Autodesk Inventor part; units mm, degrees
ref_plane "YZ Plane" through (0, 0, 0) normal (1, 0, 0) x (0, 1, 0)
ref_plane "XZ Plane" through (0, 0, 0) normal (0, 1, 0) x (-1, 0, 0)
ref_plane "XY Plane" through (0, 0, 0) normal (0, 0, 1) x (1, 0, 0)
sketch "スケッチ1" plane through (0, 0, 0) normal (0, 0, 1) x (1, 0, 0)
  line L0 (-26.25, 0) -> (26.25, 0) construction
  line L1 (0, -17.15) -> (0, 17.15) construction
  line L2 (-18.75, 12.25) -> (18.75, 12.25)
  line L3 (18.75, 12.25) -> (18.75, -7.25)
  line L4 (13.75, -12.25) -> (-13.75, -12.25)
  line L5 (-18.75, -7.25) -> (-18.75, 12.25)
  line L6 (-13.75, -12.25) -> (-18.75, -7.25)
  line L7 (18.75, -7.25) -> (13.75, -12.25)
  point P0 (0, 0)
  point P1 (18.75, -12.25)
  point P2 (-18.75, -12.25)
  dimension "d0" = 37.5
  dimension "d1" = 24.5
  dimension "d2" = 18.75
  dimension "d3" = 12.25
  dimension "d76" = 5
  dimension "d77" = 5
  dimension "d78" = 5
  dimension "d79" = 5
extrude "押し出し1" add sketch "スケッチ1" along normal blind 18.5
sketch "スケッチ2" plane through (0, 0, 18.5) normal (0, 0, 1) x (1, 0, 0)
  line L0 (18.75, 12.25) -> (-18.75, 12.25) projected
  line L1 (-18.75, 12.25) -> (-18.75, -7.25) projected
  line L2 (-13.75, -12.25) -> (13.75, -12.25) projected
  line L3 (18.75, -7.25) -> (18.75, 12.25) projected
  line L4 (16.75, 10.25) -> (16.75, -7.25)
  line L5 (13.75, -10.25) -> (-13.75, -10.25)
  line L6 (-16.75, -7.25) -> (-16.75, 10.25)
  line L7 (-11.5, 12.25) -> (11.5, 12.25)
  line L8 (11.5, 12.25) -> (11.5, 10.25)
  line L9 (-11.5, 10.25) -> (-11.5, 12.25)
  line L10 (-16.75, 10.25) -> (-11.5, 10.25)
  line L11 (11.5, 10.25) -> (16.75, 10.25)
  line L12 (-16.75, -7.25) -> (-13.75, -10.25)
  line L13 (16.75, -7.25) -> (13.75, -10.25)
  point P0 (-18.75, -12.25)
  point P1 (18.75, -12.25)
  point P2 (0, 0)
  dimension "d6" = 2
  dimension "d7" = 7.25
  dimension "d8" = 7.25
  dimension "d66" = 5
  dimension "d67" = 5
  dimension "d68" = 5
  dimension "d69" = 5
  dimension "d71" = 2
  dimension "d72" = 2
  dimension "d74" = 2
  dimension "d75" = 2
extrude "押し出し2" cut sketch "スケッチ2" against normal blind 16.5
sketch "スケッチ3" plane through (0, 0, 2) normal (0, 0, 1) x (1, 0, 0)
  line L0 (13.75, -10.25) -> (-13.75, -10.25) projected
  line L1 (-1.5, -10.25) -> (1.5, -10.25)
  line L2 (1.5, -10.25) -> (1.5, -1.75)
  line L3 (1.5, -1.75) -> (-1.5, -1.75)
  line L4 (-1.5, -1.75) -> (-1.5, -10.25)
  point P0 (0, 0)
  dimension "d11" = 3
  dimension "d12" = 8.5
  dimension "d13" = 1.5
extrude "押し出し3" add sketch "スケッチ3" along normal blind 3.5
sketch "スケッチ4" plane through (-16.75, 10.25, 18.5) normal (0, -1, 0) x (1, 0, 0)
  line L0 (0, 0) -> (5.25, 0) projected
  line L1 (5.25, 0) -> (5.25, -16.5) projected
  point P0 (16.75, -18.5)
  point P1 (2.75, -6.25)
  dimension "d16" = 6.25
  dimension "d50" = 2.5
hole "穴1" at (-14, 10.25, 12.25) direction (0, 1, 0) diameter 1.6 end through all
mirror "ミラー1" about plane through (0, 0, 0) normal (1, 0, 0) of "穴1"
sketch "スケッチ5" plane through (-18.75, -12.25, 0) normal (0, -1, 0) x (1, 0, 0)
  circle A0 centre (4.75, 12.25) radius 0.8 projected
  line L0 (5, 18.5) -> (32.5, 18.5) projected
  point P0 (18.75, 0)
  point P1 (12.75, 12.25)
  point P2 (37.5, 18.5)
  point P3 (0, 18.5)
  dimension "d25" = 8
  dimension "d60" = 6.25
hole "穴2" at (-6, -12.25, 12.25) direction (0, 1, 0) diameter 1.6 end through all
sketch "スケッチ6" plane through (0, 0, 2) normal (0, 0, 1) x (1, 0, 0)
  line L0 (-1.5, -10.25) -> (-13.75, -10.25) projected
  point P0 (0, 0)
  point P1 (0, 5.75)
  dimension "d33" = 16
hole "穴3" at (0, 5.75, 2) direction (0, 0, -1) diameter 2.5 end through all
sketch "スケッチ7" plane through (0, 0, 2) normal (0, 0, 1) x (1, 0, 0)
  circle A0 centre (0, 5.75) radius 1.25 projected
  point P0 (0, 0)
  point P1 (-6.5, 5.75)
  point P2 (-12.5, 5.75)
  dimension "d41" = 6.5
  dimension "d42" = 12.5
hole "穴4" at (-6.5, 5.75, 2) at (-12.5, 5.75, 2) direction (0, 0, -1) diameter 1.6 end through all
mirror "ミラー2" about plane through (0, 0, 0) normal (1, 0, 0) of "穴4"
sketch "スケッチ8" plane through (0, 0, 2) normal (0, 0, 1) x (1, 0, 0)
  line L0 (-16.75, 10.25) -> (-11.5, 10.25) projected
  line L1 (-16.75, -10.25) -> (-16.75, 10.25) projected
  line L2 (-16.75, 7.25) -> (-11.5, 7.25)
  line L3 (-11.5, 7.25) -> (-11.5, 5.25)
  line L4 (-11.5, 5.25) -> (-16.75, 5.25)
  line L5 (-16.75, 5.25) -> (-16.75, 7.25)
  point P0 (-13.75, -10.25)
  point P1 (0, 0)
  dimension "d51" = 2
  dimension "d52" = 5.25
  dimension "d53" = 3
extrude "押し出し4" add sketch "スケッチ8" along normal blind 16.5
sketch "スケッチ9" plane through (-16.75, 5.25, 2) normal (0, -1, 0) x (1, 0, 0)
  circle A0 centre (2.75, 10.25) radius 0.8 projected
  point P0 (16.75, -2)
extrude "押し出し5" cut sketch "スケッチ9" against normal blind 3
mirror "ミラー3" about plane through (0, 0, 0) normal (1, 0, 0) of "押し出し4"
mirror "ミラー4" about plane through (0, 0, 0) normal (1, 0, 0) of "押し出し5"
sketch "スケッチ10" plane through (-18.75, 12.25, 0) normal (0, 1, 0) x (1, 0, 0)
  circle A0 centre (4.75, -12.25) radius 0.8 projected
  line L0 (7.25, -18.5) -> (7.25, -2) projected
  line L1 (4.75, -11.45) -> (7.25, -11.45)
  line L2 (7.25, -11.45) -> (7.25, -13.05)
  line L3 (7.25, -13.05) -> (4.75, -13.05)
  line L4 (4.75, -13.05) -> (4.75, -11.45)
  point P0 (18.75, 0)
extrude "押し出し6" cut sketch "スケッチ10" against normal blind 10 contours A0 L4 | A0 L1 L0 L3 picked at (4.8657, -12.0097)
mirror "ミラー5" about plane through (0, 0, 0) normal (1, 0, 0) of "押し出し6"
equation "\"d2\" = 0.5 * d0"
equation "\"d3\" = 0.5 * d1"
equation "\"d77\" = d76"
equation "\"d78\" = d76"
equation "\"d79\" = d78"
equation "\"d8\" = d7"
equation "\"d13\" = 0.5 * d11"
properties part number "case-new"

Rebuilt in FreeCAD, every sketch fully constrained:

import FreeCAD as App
import Part
import Sketcher

V = App.Vector

doc = App.newDocument("Part")
body = doc.addObject("PartDesign::Body", "Body")

sketch1 = doc.addObject("Sketcher::SketchObject", "Sketch")
body.addObject(sketch1)
sketch1.AttachmentSupport = (doc.XY_Plane, [""])
sketch1.MapMode = "FlatFace"
sketch1.addGeometry(Part.LineSegment(V(18.75, 12.25, 0), V(-18.75, 12.25, 0)), False)
sketch1.addGeometry(Part.LineSegment(V(-18.75, 12.25, 0), V(-18.75, -7.25, 0)), False)
sketch1.addGeometry(Part.LineSegment(V(-18.75, -7.25, 0), V(-13.75, -12.25, 0)), False)
sketch1.addGeometry(Part.LineSegment(V(-13.75, -12.25, 0), V(13.75, -12.25, 0)), False)
sketch1.addGeometry(Part.LineSegment(V(13.75, -12.25, 0), V(18.75, -7.25, 0)), False)
sketch1.addGeometry(Part.LineSegment(V(18.75, -7.25, 0), V(18.75, 12.25, 0)), False)
sketch1.addConstraint(Sketcher.Constraint("Coincident", 0, 2, 1, 1))
sketch1.addConstraint(Sketcher.Constraint("Coincident", 1, 2, 2, 1))
sketch1.addConstraint(Sketcher.Constraint("Coincident", 2, 2, 3, 1))
sketch1.addConstraint(Sketcher.Constraint("Coincident", 3, 2, 4, 1))
sketch1.addConstraint(Sketcher.Constraint("Coincident", 4, 2, 5, 1))
sketch1.addConstraint(Sketcher.Constraint("Coincident", 5, 2, 0, 1))
sketch1.addConstraint(Sketcher.Constraint("Horizontal", 0))
sketch1.addConstraint(Sketcher.Constraint("Vertical", 1))
sketch1.addConstraint(Sketcher.Constraint("Horizontal", 3))
sketch1.addConstraint(Sketcher.Constraint("Vertical", 5))
sketch1.addConstraint(Sketcher.Constraint("Symmetric", 1, 2, 4, 2, -2))
sketch1.addConstraint(Sketcher.Constraint("Perpendicular", 2, 4))
sketch1.addConstraint(Sketcher.Constraint("Equal", 2, 4))
sketch1.addConstraint(Sketcher.Constraint("DistanceX", 0, 2, 0, 1, 37.5))
sketch1.addConstraint(Sketcher.Constraint("DistanceX", 1, 2, 2, 2, 5.0))
sketch1.addConstraint(Sketcher.Constraint("DistanceY", 2, 2, 0, 2, 24.5))
sketch1.addConstraint(Sketcher.Constraint("DistanceY", -1, 1, 0, 2, 12.25))
pad1 = doc.addObject("PartDesign::Pad", "Pad")
body.addObject(pad1)
pad1.Profile = sketch1
pad1.Length = 18.5

sketch2 = doc.addObject("Sketcher::SketchObject", "Sketch001")
body.addObject(sketch2)
sketch2.AttachmentSupport = (doc.XY_Plane, [""])
sketch2.MapMode = "FlatFace"
sketch2.AttachmentOffset = App.Placement(V(0, 0, 18.5), App.Rotation())
sketch2.addGeometry(Part.LineSegment(V(11.5, 10.25, 0), V(11.5, 12.25, 0)), False)
sketch2.addGeometry(Part.LineSegment(V(11.5, 12.25, 0), V(-11.5, 12.25, 0)), False)
sketch2.addGeometry(Part.LineSegment(V(-11.5, 12.25, 0), V(-11.5, 10.25, 0)), False)
sketch2.addGeometry(Part.LineSegment(V(-11.5, 10.25, 0), V(-16.75, 10.25, 0)), False)
sketch2.addGeometry(Part.LineSegment(V(-16.75, 10.25, 0), V(-16.75, -7.25, 0)), False)
sketch2.addGeometry(Part.LineSegment(V(-16.75, -7.25, 0), V(-13.75, -10.25, 0)), False)
sketch2.addGeometry(Part.LineSegment(V(-13.75, -10.25, 0), V(13.75, -10.25, 0)), False)
sketch2.addGeometry(Part.LineSegment(V(13.75, -10.25, 0), V(16.75, -7.25, 0)), False)
sketch2.addGeometry(Part.LineSegment(V(16.75, -7.25, 0), V(16.75, 10.25, 0)), False)
sketch2.addGeometry(Part.LineSegment(V(16.75, 10.25, 0), V(11.5, 10.25, 0)), False)
sketch2.addConstraint(Sketcher.Constraint("Coincident", 0, 2, 1, 1))
sketch2.addConstraint(Sketcher.Constraint("Coincident", 1, 2, 2, 1))
sketch2.addConstraint(Sketcher.Constraint("Coincident", 2, 2, 3, 1))
sketch2.addConstraint(Sketcher.Constraint("Coincident", 3, 2, 4, 1))
sketch2.addConstraint(Sketcher.Constraint("Coincident", 4, 2, 5, 1))
sketch2.addConstraint(Sketcher.Constraint("Coincident", 5, 2, 6, 1))
sketch2.addConstraint(Sketcher.Constraint("Coincident", 6, 2, 7, 1))
sketch2.addConstraint(Sketcher.Constraint("Coincident", 7, 2, 8, 1))
sketch2.addConstraint(Sketcher.Constraint("Coincident", 8, 2, 9, 1))
sketch2.addConstraint(Sketcher.Constraint("Coincident", 9, 2, 0, 1))
sketch2.addConstraint(Sketcher.Constraint("Vertical", 0))
sketch2.addConstraint(Sketcher.Constraint("Horizontal", 1))
sketch2.addConstraint(Sketcher.Constraint("Vertical", 2))
sketch2.addConstraint(Sketcher.Constraint("Horizontal", 3))
sketch2.addConstraint(Sketcher.Constraint("Vertical", 4))
sketch2.addConstraint(Sketcher.Constraint("Horizontal", 6))
sketch2.addConstraint(Sketcher.Constraint("Vertical", 8))
sketch2.addConstraint(Sketcher.Constraint("Horizontal", 9))
sketch2.addConstraint(Sketcher.Constraint("Symmetric", 4, 2, 7, 2, -2))
sketch2.addConstraint(Sketcher.Constraint("Symmetric", 2, 2, 9, 2, -2))
sketch2.addConstraint(Sketcher.Constraint("Perpendicular", 5, 7))
sketch2.addConstraint(Sketcher.Constraint("Equal", 5, 7))
sketch2.addConstraint(Sketcher.Constraint("DistanceY", 0, 1, 0, 2, 2.0))
sketch2.addConstraint(Sketcher.Constraint("DistanceX", 1, 2, 1, 1, 23.0))
sketch2.addConstraint(Sketcher.Constraint("DistanceY", 4, 2, -1, 1, 7.25))
sketch2.addConstraint(Sketcher.Constraint("DistanceX", 6, 1, 6, 2, 27.5))
sketch2.addConstraint(Sketcher.Constraint("DistanceY", 4, 2, 4, 1, 17.5))
sketch2.addConstraint(Sketcher.Constraint("DistanceX", 4, 2, 5, 2, 3.0))
pocket1 = doc.addObject("PartDesign::Pocket", "Pocket")
body.addObject(pocket1)
pocket1.Profile = sketch2
pocket1.Length = 16.5

sketch3 = doc.addObject("Sketcher::SketchObject", "Sketch002")
body.addObject(sketch3)
sketch3.AttachmentSupport = (doc.XY_Plane, [""])
sketch3.MapMode = "FlatFace"
sketch3.AttachmentOffset = App.Placement(V(0, 0, 2), App.Rotation())
sketch3.addGeometry(Part.LineSegment(V(-1.5, -10.25, 0), V(1.5, -10.25, 0)), False)
sketch3.addGeometry(Part.LineSegment(V(1.5, -10.25, 0), V(1.5, -1.75, 0)), False)
sketch3.addGeometry(Part.LineSegment(V(1.5, -1.75, 0), V(-1.5, -1.75, 0)), False)
sketch3.addGeometry(Part.LineSegment(V(-1.5, -1.75, 0), V(-1.5, -10.25, 0)), False)
sketch3.addConstraint(Sketcher.Constraint("Coincident", 0, 2, 1, 1))
sketch3.addConstraint(Sketcher.Constraint("Coincident", 1, 2, 2, 1))
sketch3.addConstraint(Sketcher.Constraint("Coincident", 2, 2, 3, 1))
sketch3.addConstraint(Sketcher.Constraint("Coincident", 3, 2, 0, 1))
sketch3.addConstraint(Sketcher.Constraint("Horizontal", 0))
sketch3.addConstraint(Sketcher.Constraint("Vertical", 1))
sketch3.addConstraint(Sketcher.Constraint("Horizontal", 2))
sketch3.addConstraint(Sketcher.Constraint("Vertical", 3))
sketch3.addConstraint(Sketcher.Constraint("DistanceX", 0, 1, 0, 2, 3.0))
sketch3.addConstraint(Sketcher.Constraint("DistanceY", 1, 1, 1, 2, 8.5))
sketch3.addConstraint(Sketcher.Constraint("DistanceX", -1, 1, 0, 2, 1.5))
sketch3.addConstraint(Sketcher.Constraint("DistanceY", 0, 2, -1, 1, 10.25))
pad2 = doc.addObject("PartDesign::Pad", "Pad001")
body.addObject(pad2)
pad2.Profile = sketch3
pad2.Length = 3.5

sketch4 = doc.addObject("Sketcher::SketchObject", "Sketch003")
body.addObject(sketch4)
sketch4.AttachmentSupport = (doc.XZ_Plane, [""])
sketch4.MapMode = "FlatFace"
sketch4.AttachmentOffset = App.Placement(V(0, 0, -10.25), App.Rotation())
sketch4.addGeometry(Part.Circle(V(-14, 12.25, 0), V(0, 0, 1), 0.8), False)
sketch4.addConstraint(Sketcher.Constraint("Diameter", 0, 1.6))
sketch4.addConstraint(Sketcher.Constraint("DistanceX", 0, 3, -1, 1, 14.0))
sketch4.addConstraint(Sketcher.Constraint("DistanceY", -1, 1, 0, 3, 12.25))
doc.recompute()
hole = doc.addObject("PartDesign::Hole", "Hole")
body.addObject(hole)
hole.Profile = sketch4
hole.ThreadType = "None"
hole.Diameter = 1.6
hole.DepthType = "ThroughAll"
doc.recompute()

mirrored = doc.addObject("PartDesign::Mirrored", "Mirrored")
body.addObject(mirrored)
mirrored.Originals = [hole]
mirrored.MirrorPlane = (doc.YZ_Plane, [""])
body.Tip = mirrored

sketch5 = doc.addObject("Sketcher::SketchObject", "Sketch004")
body.addObject(sketch5)
sketch5.AttachmentSupport = (doc.XZ_Plane, [""])
sketch5.MapMode = "FlatFace"
sketch5.AttachmentOffset = App.Placement(V(0, 0, 12.25), App.Rotation())
sketch5.addGeometry(Part.Circle(V(-6, 12.25, 0), V(0, 0, 1), 0.8), False)
sketch5.addConstraint(Sketcher.Constraint("Diameter", 0, 1.6))
sketch5.addConstraint(Sketcher.Constraint("DistanceX", 0, 3, -1, 1, 6.0))
sketch5.addConstraint(Sketcher.Constraint("DistanceY", -1, 1, 0, 3, 12.25))
doc.recompute()
hole2 = doc.addObject("PartDesign::Hole", "Hole001")
body.addObject(hole2)
hole2.Profile = sketch5
hole2.ThreadType = "None"
hole2.Diameter = 1.6
hole2.DepthType = "ThroughAll"

sketch6 = doc.addObject("Sketcher::SketchObject", "Sketch005")
body.addObject(sketch6)
sketch6.AttachmentSupport = (doc.XY_Plane, [""])
sketch6.MapMode = "FlatFace"
sketch6.AttachmentOffset = App.Placement(V(0, 0, 2), App.Rotation())
sketch6.addGeometry(Part.Circle(V(0, 5.75, 0), V(0, 0, 1), 1.25), False)
sketch6.addConstraint(Sketcher.Constraint("PointOnObject", 0, 3, -2))
sketch6.addConstraint(Sketcher.Constraint("Diameter", 0, 2.5))
sketch6.addConstraint(Sketcher.Constraint("DistanceY", -1, 1, 0, 3, 5.75))
doc.recompute()
hole3 = doc.addObject("PartDesign::Hole", "Hole002")
body.addObject(hole3)
hole3.Profile = sketch6
hole3.ThreadType = "None"
hole3.Diameter = 2.5
hole3.DepthType = "ThroughAll"

sketch7 = doc.addObject("Sketcher::SketchObject", "Sketch006")
body.addObject(sketch7)
sketch7.AttachmentSupport = (doc.XY_Plane, [""])
sketch7.MapMode = "FlatFace"
sketch7.AttachmentOffset = App.Placement(V(0, 0, 2), App.Rotation())
sketch7.addGeometry(Part.Circle(V(-6.5, 5.75, 0), V(0, 0, 1), 0.8), False)
sketch7.addGeometry(Part.Circle(V(-12.5, 5.75, 0), V(0, 0, 1), 0.8), False)
sketch7.addConstraint(Sketcher.Constraint("Equal", 0, 1))
sketch7.addConstraint(Sketcher.Constraint("Horizontal", 0, 3, 1, 3))
sketch7.addConstraint(Sketcher.Constraint("Diameter", 0, 1.6))
sketch7.addConstraint(Sketcher.Constraint("DistanceX", 1, 3, 0, 3, 6.0))
sketch7.addConstraint(Sketcher.Constraint("DistanceX", 0, 3, -1, 1, 6.5))
sketch7.addConstraint(Sketcher.Constraint("DistanceY", -1, 1, 0, 3, 5.75))
doc.recompute()
hole4 = doc.addObject("PartDesign::Hole", "Hole003")
body.addObject(hole4)
hole4.Profile = sketch7
hole4.ThreadType = "None"
hole4.Diameter = 1.6
hole4.DepthType = "ThroughAll"
doc.recompute()

mirrored2 = doc.addObject("PartDesign::Mirrored", "Mirrored001")
body.addObject(mirrored2)
mirrored2.Originals = [hole4]
mirrored2.MirrorPlane = (doc.YZ_Plane, [""])
body.Tip = mirrored2

sketch8 = doc.addObject("Sketcher::SketchObject", "Sketch007")
body.addObject(sketch8)
sketch8.AttachmentSupport = (doc.XY_Plane, [""])
sketch8.MapMode = "FlatFace"
sketch8.AttachmentOffset = App.Placement(V(0, 0, 2), App.Rotation())
sketch8.addGeometry(Part.LineSegment(V(-16.75, 7.25, 0), V(-16.75, 5.25, 0)), False)
sketch8.addGeometry(Part.LineSegment(V(-16.75, 5.25, 0), V(-11.5, 5.25, 0)), False)
sketch8.addGeometry(Part.LineSegment(V(-11.5, 5.25, 0), V(-11.5, 7.25, 0)), False)
sketch8.addGeometry(Part.LineSegment(V(-11.5, 7.25, 0), V(-16.75, 7.25, 0)), False)
sketch8.addConstraint(Sketcher.Constraint("Coincident", 0, 2, 1, 1))
sketch8.addConstraint(Sketcher.Constraint("Coincident", 1, 2, 2, 1))
sketch8.addConstraint(Sketcher.Constraint("Coincident", 2, 2, 3, 1))
sketch8.addConstraint(Sketcher.Constraint("Coincident", 3, 2, 0, 1))
sketch8.addConstraint(Sketcher.Constraint("Vertical", 0))
sketch8.addConstraint(Sketcher.Constraint("Horizontal", 1))
sketch8.addConstraint(Sketcher.Constraint("Vertical", 2))
sketch8.addConstraint(Sketcher.Constraint("Horizontal", 3))
sketch8.addConstraint(Sketcher.Constraint("DistanceY", 0, 2, 0, 1, 2.0))
sketch8.addConstraint(Sketcher.Constraint("DistanceX", 1, 1, 1, 2, 5.25))
sketch8.addConstraint(Sketcher.Constraint("DistanceY", -1, 1, 0, 2, 5.25))
sketch8.addConstraint(Sketcher.Constraint("DistanceX", 1, 2, -1, 1, 11.5))
pad3 = doc.addObject("PartDesign::Pad", "Pad002")
body.addObject(pad3)
pad3.Profile = sketch8
pad3.Length = 16.5

sketch9 = doc.addObject("Sketcher::SketchObject", "Sketch008")
body.addObject(sketch9)
sketch9.AttachmentSupport = (doc.XZ_Plane, [""])
sketch9.MapMode = "FlatFace"
sketch9.AttachmentOffset = App.Placement(V(0, 0, -5.25), App.Rotation())
sketch9.addGeometry(Part.Circle(V(-14, 12.25, 0), V(0, 0, 1), 0.8), False)
sketch9.addConstraint(Sketcher.Constraint("Diameter", 0, 1.6))
sketch9.addConstraint(Sketcher.Constraint("DistanceX", 0, 3, -1, 1, 14.0))
sketch9.addConstraint(Sketcher.Constraint("DistanceY", -1, 1, 0, 3, 12.25))
pocket2 = doc.addObject("PartDesign::Pocket", "Pocket001")
body.addObject(pocket2)
pocket2.Profile = sketch9
pocket2.Length = 3
doc.recompute()

mirrored3 = doc.addObject("PartDesign::Mirrored", "Mirrored002")
body.addObject(mirrored3)
mirrored3.Originals = [pad3]
mirrored3.MirrorPlane = (doc.YZ_Plane, [""])
body.Tip = mirrored3
doc.recompute()

mirrored4 = doc.addObject("PartDesign::Mirrored", "Mirrored003")
body.addObject(mirrored4)
mirrored4.Originals = [pocket2]
mirrored4.MirrorPlane = (doc.YZ_Plane, [""])
body.Tip = mirrored4

sketch10 = doc.addObject("Sketcher::SketchObject", "Sketch009")
body.addObject(sketch10)
sketch10.AttachmentSupport = (doc.XZ_Plane, [""])
sketch10.MapMode = "FlatFace"
sketch10.AttachmentOffset = App.Placement(V(0, 0, -12.25), App.Rotation())
sketch10.addGeometry(Part.LineSegment(V(-14, 11.45, 0), V(-14, 13.05, 0)), False)
sketch10.addGeometry(Part.LineSegment(V(-14, 13.05, 0), V(-11.5, 13.05, 0)), False)
sketch10.addGeometry(Part.LineSegment(V(-11.5, 13.05, 0), V(-11.5, 11.45, 0)), False)
sketch10.addGeometry(Part.LineSegment(V(-11.5, 11.45, 0), V(-14, 11.45, 0)), False)
sketch10.addConstraint(Sketcher.Constraint("Coincident", 0, 2, 1, 1))
sketch10.addConstraint(Sketcher.Constraint("Coincident", 1, 2, 2, 1))
sketch10.addConstraint(Sketcher.Constraint("Coincident", 2, 2, 3, 1))
sketch10.addConstraint(Sketcher.Constraint("Coincident", 3, 2, 0, 1))
sketch10.addConstraint(Sketcher.Constraint("Vertical", 0))
sketch10.addConstraint(Sketcher.Constraint("Horizontal", 1))
sketch10.addConstraint(Sketcher.Constraint("Vertical", 2))
sketch10.addConstraint(Sketcher.Constraint("Horizontal", 3))
sketch10.addConstraint(Sketcher.Constraint("DistanceX", 1, 1, 1, 2, 2.5))
sketch10.addConstraint(Sketcher.Constraint("DistanceY", 0, 1, 0, 2, 1.6))
sketch10.addConstraint(Sketcher.Constraint("DistanceX", 0, 2, -1, 1, 14.0))
sketch10.addConstraint(Sketcher.Constraint("DistanceY", -1, 1, 0, 2, 13.05))
pocket3 = doc.addObject("PartDesign::Pocket", "Pocket002")
body.addObject(pocket3)
pocket3.Profile = sketch10
pocket3.Length = 10
pocket3.Reversed = True
doc.recompute()

mirrored5 = doc.addObject("PartDesign::Mirrored", "Mirrored004")
body.addObject(mirrored5)
mirrored5.Originals = [pocket3]
mirrored5.MirrorPlane = (doc.YZ_Plane, [""])
body.Tip = mirrored5

doc.recompute()
